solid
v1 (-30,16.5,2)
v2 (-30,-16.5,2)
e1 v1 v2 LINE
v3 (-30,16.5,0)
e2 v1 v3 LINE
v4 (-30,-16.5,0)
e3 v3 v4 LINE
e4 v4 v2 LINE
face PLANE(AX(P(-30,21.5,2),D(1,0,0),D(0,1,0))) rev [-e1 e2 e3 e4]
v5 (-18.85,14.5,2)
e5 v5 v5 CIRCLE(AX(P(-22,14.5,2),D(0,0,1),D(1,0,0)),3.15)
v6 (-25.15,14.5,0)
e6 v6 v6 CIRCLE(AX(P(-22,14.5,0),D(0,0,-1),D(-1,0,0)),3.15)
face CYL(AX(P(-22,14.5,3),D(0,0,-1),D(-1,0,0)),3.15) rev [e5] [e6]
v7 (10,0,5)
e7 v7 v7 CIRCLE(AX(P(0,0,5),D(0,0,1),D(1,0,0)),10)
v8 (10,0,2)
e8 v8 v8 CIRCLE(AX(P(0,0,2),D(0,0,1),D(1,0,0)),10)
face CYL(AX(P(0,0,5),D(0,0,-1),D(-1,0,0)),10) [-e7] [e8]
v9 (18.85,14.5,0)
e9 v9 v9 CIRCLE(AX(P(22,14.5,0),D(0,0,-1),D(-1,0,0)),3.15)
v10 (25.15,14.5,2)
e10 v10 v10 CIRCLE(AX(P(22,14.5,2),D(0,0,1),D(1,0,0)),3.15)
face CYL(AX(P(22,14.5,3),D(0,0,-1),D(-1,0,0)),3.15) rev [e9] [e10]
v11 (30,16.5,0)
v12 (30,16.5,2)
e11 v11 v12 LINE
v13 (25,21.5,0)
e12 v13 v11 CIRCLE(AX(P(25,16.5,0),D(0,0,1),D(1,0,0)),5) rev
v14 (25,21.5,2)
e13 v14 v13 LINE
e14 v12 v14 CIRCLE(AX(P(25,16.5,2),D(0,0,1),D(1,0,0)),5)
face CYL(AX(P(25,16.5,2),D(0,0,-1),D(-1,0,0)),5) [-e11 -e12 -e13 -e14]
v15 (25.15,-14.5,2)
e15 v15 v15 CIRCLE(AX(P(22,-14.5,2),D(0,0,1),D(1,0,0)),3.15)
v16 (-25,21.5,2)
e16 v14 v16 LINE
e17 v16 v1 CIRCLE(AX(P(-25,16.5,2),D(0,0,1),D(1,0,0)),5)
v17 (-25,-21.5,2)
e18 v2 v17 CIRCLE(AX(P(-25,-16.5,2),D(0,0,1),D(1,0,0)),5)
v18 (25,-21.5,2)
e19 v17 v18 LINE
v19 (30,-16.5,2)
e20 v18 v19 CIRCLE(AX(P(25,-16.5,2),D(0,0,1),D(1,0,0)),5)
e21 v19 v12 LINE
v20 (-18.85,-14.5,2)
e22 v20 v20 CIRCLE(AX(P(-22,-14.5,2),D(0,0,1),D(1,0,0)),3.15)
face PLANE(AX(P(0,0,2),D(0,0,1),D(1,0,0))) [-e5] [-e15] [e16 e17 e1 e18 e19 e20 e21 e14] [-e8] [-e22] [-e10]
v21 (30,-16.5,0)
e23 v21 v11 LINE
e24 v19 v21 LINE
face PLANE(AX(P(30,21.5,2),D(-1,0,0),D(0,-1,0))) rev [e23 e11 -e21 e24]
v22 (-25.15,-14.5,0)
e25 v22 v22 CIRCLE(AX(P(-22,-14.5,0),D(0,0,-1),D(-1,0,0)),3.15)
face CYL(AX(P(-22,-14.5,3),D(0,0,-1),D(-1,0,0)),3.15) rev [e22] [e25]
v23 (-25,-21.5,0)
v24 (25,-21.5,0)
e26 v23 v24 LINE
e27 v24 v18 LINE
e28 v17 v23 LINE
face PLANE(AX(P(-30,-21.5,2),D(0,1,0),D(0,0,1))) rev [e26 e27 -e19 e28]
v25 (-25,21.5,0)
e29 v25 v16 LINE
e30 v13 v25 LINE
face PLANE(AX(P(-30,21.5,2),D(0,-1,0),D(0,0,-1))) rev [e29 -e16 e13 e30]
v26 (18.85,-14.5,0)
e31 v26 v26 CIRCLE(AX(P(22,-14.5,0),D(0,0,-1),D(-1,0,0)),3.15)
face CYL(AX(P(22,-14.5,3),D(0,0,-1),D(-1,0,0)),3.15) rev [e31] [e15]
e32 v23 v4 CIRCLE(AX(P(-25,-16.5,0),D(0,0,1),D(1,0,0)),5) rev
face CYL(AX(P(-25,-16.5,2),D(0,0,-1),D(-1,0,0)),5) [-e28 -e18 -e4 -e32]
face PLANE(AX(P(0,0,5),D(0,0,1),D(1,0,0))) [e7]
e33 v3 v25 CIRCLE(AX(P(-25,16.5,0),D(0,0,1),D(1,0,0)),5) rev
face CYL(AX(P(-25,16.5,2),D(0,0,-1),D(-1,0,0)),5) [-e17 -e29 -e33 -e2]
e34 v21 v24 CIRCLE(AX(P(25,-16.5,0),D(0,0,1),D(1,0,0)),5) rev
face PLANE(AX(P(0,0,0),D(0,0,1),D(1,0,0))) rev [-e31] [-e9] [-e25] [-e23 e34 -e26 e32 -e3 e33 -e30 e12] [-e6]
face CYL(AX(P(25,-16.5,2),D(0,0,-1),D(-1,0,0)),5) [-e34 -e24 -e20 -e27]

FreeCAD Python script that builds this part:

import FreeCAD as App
import Part
import Sketcher
from FreeCAD import Vector


def edges_at(feature, points):
    """Names of the edges that pass closest to the given points."""
    edges = feature.Shape.Edges
    near = lambda p: min(range(len(edges)), key=lambda i: edges[i].distToShape(Part.Vertex(*p))[0])
    return sorted({f"Edge{near(p) + 1}" for p in points})


def add_polygon(sketch, points):
    """Adds a closed chain of lines whose ends are joined by coincident constraints."""
    first, n = sketch.GeometryCount, len(points)
    for a, b in zip(points, points[1:] + points[:1]):
        sketch.addGeometry(Part.LineSegment(App.Vector(*a, 0), App.Vector(*b, 0)), False)
    for i in range(n):
        sketch.addConstraint(Sketcher.Constraint("Coincident", first + i, 2, first + (i + 1) % n, 1))

doc = App.newDocument("Part")
body = doc.addObject("PartDesign::Body", "Body")

# Sketch on XY plane
sketch1 = doc.addObject("Sketcher::SketchObject", "Sketch")
body.addObject(sketch1)
sketch1.AttachmentSupport = (doc.XY_Plane, [""])
sketch1.MapMode = "FlatFace"
add_polygon(sketch1, [(-30, 22), (-30, -22), (30, -22), (30, 22)])  # lines 0-3
sketch1.addConstraint(Sketcher.Constraint("Vertical", 0))
sketch1.addConstraint(Sketcher.Constraint("Horizontal", 1))
sketch1.addConstraint(Sketcher.Constraint("Vertical", 2))
sketch1.addConstraint(Sketcher.Constraint("Horizontal", 3))
sketch1.addConstraint(Sketcher.Constraint("Symmetric", 0, 2, 2, 2, -1, 1))
sketch1.addConstraint(Sketcher.Constraint("DistanceX", 1, 1, 1, 2, 60.0))
sketch1.addConstraint(Sketcher.Constraint("DistanceY", 0, 2, 0, 1, 43.0))
pad1 = doc.addObject("PartDesign::Pad", "Pad")
body.addObject(pad1)
pad1.Profile = sketch1
pad1.Length = 2

# Sketch on XY plane
sketch2 = doc.addObject("Sketcher::SketchObject", "Sketch001")
body.addObject(sketch2)
sketch2.AttachmentSupport = (doc.XY_Plane, [""])
sketch2.MapMode = "FlatFace"
sketch2.AttachmentOffset = App.Placement(Vector(0, 0, 2), App.Rotation())
sketch2.addGeometry(Part.Circle(Vector(0, 0, 0), Vector(0, 0, 1), 10), False)
sketch2.addConstraint(Sketcher.Constraint("Coincident", 0, 3, -1, 1))
sketch2.addConstraint(Sketcher.Constraint("Diameter", 0, 20.0))
pad2 = doc.addObject("PartDesign::Pad", "Pad001")
body.addObject(pad2)
pad2.Profile = sketch2
pad2.Length = 3
doc.recompute()

fillet = doc.addObject("PartDesign::Fillet", "Fillet")
body.addObject(fillet)
fillet.Base = (pad2, edges_at(pad2, [
    (-30, 21.5, 1),
    (30, 21.5, 1),
    (30, -21.5, 1),
    (-30, -21.5, 1),
]))
fillet.Radius = 5

# Sketch on XY plane
sketch3 = doc.addObject("Sketcher::SketchObject", "Sketch002")
body.addObject(sketch3)
sketch3.AttachmentSupport = (doc.XY_Plane, [""])
sketch3.MapMode = "FlatFace"
sketch3.addGeometry(Part.Circle(Vector(-22, 14.5, 0), Vector(0, 0, 1), 3.1), False)
sketch3.addGeometry(Part.Circle(Vector(-22, -14.5, 0), Vector(0, 0, 1), 3.1), False)
sketch3.addGeometry(Part.Circle(Vector(22, 14.5, 0), Vector(0, 0, 1), 3.1), False)
sketch3.addGeometry(Part.Circle(Vector(22, -14.5, 0), Vector(0, 0, 1), 3.1), False)
sketch3.addConstraint(Sketcher.Constraint("Equal", 0, 1))
sketch3.addConstraint(Sketcher.Constraint("Equal", 1, 2))
sketch3.addConstraint(Sketcher.Constraint("Equal", 2, 3))
sketch3.addConstraint(Sketcher.Constraint("Symmetric", 1, 3, 2, 3, -1, 1))
sketch3.addConstraint(Sketcher.Constraint("Symmetric", 0, 3, 3, 3, -1, 1))
sketch3.addConstraint(Sketcher.Constraint("Symmetric", 0, 3, 2, 3, -2))
sketch3.addConstraint(Sketcher.Constraint("Diameter", 0, 6.3))
sketch3.addConstraint(Sketcher.Constraint("DistanceX", 0, 3, -1, 1, 22.0))
sketch3.addConstraint(Sketcher.Constraint("DistanceY", 1, 3, 0, 3, 29.0))
pocket1 = doc.addObject("PartDesign::Pocket", "Pocket")
body.addObject(pocket1)
pocket1.Profile = sketch3
pocket1.Length = 3
pocket1.Reversed = True

doc.recompute()
